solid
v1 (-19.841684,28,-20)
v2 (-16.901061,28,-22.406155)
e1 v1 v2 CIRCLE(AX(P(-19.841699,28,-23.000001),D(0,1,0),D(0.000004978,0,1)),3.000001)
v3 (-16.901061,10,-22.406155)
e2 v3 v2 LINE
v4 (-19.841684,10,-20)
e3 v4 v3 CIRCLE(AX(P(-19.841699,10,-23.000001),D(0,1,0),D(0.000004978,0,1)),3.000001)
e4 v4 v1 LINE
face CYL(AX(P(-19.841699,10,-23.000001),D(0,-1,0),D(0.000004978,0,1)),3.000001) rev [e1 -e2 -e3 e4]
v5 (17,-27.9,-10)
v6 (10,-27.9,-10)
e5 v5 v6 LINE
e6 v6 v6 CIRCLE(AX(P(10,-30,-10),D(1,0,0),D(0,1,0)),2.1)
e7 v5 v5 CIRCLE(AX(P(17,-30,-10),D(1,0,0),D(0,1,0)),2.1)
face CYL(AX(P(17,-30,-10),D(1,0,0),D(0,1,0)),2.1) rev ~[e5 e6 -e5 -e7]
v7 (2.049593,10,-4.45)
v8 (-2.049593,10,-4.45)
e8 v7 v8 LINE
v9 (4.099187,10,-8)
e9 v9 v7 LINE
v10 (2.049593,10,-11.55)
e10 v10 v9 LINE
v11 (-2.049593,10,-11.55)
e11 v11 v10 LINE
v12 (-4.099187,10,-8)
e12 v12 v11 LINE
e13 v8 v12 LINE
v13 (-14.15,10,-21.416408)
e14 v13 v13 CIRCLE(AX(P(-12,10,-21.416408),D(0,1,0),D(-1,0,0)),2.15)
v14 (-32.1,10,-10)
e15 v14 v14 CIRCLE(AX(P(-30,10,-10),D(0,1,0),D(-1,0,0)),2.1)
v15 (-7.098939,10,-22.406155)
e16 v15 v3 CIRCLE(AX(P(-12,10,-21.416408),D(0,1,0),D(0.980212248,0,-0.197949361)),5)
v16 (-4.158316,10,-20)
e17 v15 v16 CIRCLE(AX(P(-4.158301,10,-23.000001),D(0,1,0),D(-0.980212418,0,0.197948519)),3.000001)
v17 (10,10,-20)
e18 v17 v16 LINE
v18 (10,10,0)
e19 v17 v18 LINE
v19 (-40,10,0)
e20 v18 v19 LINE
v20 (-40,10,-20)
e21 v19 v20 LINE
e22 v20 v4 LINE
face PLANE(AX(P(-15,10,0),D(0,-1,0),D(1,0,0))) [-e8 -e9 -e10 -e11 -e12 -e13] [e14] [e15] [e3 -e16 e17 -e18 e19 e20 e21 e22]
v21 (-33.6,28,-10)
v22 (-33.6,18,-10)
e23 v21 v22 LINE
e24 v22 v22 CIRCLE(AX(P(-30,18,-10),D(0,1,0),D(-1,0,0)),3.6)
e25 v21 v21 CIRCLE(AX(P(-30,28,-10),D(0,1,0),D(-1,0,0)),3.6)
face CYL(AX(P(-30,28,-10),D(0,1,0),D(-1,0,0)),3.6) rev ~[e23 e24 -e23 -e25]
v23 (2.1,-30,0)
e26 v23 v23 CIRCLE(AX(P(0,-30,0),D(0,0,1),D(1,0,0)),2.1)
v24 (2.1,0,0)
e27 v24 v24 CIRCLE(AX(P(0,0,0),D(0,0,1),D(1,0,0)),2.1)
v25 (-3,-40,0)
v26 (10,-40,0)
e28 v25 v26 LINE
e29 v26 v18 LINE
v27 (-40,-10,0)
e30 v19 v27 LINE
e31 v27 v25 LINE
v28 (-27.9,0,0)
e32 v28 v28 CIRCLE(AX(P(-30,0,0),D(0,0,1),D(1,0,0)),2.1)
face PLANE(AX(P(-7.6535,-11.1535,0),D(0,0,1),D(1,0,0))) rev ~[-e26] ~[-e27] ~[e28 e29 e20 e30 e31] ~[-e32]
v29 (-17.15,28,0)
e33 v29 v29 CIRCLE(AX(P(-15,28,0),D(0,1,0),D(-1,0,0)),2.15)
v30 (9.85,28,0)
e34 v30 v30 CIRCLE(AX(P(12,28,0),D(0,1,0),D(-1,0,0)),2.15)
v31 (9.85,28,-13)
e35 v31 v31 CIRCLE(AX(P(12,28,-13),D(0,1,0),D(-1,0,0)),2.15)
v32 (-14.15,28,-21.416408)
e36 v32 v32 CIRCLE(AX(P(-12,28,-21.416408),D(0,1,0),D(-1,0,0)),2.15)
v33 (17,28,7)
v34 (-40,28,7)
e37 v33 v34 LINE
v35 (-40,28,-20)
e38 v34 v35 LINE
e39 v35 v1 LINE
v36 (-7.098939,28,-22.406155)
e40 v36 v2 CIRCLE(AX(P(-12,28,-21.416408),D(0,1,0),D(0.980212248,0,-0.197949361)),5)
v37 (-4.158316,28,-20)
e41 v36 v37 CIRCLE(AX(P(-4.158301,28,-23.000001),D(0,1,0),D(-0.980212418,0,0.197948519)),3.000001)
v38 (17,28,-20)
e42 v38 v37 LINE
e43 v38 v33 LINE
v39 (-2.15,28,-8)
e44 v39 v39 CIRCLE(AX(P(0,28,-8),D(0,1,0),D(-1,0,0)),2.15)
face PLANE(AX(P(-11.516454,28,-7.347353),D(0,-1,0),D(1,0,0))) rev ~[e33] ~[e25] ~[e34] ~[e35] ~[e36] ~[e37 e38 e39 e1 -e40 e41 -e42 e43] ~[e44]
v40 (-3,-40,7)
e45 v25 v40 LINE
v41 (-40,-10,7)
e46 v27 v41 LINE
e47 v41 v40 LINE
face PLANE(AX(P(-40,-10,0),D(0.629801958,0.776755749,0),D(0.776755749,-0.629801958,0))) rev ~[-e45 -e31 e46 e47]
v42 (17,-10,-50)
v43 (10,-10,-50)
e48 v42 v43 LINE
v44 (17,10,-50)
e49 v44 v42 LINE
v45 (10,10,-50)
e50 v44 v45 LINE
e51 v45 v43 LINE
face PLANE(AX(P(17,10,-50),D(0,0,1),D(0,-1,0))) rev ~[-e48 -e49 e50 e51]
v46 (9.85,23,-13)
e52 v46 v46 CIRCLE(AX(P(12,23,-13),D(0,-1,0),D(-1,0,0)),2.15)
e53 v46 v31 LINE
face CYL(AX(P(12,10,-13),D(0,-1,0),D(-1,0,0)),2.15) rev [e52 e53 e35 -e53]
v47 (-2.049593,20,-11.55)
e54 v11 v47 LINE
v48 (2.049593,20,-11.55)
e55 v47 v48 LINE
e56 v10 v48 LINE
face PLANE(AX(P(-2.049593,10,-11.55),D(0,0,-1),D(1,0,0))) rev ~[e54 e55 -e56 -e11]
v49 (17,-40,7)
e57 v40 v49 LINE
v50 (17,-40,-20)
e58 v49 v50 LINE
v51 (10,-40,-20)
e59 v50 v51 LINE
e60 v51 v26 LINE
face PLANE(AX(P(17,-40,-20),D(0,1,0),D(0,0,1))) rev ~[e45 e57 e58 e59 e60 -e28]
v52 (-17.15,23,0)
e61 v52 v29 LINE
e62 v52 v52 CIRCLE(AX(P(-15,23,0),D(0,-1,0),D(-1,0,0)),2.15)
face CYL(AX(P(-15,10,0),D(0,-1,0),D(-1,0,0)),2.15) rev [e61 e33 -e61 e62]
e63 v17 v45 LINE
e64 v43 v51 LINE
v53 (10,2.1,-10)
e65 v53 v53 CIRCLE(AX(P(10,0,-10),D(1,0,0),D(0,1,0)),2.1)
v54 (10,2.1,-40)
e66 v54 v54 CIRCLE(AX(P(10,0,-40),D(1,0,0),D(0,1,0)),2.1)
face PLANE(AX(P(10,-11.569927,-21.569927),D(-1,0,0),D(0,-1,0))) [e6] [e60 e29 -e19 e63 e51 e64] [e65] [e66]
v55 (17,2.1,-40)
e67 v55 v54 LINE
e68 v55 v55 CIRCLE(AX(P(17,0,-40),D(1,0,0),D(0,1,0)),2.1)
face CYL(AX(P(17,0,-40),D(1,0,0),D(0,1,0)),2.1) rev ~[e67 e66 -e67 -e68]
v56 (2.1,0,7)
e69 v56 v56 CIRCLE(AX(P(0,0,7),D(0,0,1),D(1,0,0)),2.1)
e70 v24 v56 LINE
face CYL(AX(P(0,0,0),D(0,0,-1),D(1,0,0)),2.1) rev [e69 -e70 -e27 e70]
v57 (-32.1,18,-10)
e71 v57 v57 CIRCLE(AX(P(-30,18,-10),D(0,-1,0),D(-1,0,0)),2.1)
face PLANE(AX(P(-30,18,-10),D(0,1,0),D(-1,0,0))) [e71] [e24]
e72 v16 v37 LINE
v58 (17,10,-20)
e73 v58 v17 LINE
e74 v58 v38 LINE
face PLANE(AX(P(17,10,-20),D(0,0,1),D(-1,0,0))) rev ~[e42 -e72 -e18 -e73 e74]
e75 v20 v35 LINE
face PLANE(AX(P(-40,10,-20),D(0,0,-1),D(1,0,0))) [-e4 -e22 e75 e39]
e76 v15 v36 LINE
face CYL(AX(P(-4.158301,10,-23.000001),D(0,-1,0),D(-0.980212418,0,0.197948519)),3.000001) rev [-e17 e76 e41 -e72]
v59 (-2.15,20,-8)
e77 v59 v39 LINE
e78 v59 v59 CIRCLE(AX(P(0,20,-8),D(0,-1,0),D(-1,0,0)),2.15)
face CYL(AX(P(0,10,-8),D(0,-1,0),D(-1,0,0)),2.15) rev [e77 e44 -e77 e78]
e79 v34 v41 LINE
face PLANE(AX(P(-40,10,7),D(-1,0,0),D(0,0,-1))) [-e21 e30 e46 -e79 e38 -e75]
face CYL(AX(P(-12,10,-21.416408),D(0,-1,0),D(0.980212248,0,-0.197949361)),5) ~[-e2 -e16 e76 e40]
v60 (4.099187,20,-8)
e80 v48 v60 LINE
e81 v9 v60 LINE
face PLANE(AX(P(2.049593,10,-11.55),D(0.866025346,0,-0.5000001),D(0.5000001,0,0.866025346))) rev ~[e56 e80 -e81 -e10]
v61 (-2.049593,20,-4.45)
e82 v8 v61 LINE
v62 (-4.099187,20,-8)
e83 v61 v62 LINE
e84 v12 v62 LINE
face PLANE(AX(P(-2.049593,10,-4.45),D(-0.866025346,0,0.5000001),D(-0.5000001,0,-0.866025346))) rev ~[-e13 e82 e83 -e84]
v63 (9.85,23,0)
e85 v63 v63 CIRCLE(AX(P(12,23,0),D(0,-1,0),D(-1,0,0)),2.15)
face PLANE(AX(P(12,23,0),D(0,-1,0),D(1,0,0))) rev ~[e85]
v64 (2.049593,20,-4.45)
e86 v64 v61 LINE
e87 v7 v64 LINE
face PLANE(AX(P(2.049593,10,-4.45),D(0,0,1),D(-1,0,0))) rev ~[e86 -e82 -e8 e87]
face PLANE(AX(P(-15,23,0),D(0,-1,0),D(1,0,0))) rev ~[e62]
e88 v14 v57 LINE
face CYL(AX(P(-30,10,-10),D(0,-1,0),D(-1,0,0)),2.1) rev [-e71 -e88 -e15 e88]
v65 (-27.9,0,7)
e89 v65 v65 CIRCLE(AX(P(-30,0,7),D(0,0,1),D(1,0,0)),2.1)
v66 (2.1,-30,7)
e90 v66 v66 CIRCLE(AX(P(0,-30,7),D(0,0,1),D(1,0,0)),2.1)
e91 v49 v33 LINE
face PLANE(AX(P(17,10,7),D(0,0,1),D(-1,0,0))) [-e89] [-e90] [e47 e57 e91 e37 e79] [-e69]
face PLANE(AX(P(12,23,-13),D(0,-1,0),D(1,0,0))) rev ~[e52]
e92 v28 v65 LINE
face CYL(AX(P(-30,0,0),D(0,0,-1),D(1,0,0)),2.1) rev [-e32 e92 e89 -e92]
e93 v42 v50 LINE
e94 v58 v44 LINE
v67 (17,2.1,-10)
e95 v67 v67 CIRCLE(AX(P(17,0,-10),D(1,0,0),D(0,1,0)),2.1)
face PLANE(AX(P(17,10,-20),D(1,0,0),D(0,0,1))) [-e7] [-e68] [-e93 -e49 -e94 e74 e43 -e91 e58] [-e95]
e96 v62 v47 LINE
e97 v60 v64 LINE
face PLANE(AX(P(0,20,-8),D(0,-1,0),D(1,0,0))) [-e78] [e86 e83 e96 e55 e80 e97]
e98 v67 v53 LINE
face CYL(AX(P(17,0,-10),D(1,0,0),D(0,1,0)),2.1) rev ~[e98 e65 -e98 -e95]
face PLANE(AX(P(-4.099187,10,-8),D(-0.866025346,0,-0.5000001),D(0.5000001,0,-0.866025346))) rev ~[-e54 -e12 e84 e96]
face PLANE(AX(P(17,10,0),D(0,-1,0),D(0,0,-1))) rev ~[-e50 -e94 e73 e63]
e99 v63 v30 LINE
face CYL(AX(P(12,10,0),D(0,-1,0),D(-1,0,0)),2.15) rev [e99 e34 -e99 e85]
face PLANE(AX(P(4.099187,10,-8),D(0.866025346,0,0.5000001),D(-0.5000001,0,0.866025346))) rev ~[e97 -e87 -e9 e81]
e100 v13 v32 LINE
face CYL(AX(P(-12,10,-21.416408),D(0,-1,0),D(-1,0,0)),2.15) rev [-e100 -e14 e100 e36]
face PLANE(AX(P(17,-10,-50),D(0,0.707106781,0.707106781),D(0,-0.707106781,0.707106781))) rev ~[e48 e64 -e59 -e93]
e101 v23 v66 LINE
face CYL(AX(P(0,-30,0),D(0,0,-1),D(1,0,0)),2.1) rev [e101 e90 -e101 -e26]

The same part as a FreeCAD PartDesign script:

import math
import FreeCAD as App
import Part
import Sketcher

V = App.Vector
Q = App.Units.Quantity

doc = App.newDocument("Part")
body = doc.addObject("PartDesign::Body", "Body")

sketch1 = body.newObject("Sketcher::SketchObject", "Sketch")
sketch1.AttachmentSupport = (doc.getObject("XY_Plane"), [""])
sketch1.MapMode = "FlatFace"
sketch1.addGeometry([
    Part.LineSegment(V(-40, 10, 0), V(-40, -10, 0)),
    Part.LineSegment(V(-40, -10, 0), V(-3, -40, 0)),
    Part.LineSegment(V(-3, -40, 0), V(17, -40, 0)),
    Part.LineSegment(V(17, -40, 0), V(17, 10, 0)),
    Part.LineSegment(V(17, 10, 0), V(-40, 10, 0)),
    Part.Circle(V(0, -30, 0), V(0, 0, 1), 2.1),
    Part.Circle(V(-30, 0, 0), V(0, 0, 1), 2.1),
    Part.Circle(V(0, 0, 0), V(0, 0, 1), 2.1),
], False)
sketch1.addConstraint([
    Sketcher.Constraint("Coincident", 0, 2, 1, 1),
    Sketcher.Constraint("Coincident", 1, 2, 2, 1),
    Sketcher.Constraint("Coincident", 2, 2, 3, 1),
    Sketcher.Constraint("Coincident", 3, 2, 4, 1),
    Sketcher.Constraint("Coincident", 4, 2, 0, 1),
    Sketcher.Constraint("Vertical", 0),
    Sketcher.Constraint("Horizontal", 2),
    Sketcher.Constraint("Vertical", 3),
    Sketcher.Constraint("Horizontal", 4),
    Sketcher.Constraint("Coincident", 7, 3, -1, 1),
    Sketcher.Constraint("Equal", 5, 6),
    Sketcher.Constraint("Equal", 6, 7),
    Sketcher.Constraint("PointOnObject", 5, 3, -2),
    Sketcher.Constraint("PointOnObject", 6, 3, -1),
    Sketcher.Constraint("Equal", 2, 0),
    Sketcher.Constraint("Diameter", 5, Q("4.2 mm")),
    Sketcher.Constraint("DistanceX", 2, 1, 2, 2, Q("20 mm")),
    Sketcher.Constraint("DistanceX", 4, 2, 4, 1, Q("57 mm")),
    Sketcher.Constraint("DistanceY", 3, 1, 3, 2, Q("50 mm")),
    Sketcher.Constraint("DistanceY", 5, 3, -1, 1, Q("30 mm")),
    Sketcher.Constraint("DistanceX", 6, 3, -1, 1, Q("30 mm")),
    Sketcher.Constraint("DistanceX", 0, 2, -1, 1, Q("40 mm")),
    Sketcher.Constraint("DistanceY", 0, 2, -1, 1, Q("10 mm")),
])
pad1 = body.newObject("PartDesign::Pad", "Pad")
pad1.Profile = sketch1
pad1.Length = 7

sketch2 = body.newObject("Sketcher::SketchObject", "Sketch001")
sketch2.AttachmentSupport = (doc.getObject("YZ_Plane"), [""])
sketch2.MapMode = "FlatFace"
sketch2.AttachmentOffset = App.Placement(V(0, 0, 17), App.Rotation())
sketch2.addGeometry([
    Part.LineSegment(V(10, -50, 0), V(10, 0, 0)),
    Part.LineSegment(V(10, 0, 0), V(-40, 0, 0)),
    Part.LineSegment(V(-40, 0, 0), V(-40, -20, 0)),
    Part.LineSegment(V(-40, -20, 0), V(-10, -50, 0)),
    Part.LineSegment(V(-10, -50, 0), V(10, -50, 0)),
    Part.Circle(V(0, -40, 0), V(0, 0, 1), 2.1),
    Part.Circle(V(0, -10, 0), V(0, 0, 1), 2.1),
    Part.Circle(V(-30, -10, 0), V(0, 0, 1), 2.1),
], False)
sketch2.addConstraint([
    Sketcher.Constraint("Coincident", 0, 2, 1, 1),
    Sketcher.Constraint("Coincident", 1, 2, 2, 1),
    Sketcher.Constraint("Coincident", 2, 2, 3, 1),
    Sketcher.Constraint("Coincident", 3, 2, 4, 1),
    Sketcher.Constraint("Coincident", 4, 2, 0, 1),
    Sketcher.Constraint("Vertical", 0),
    Sketcher.Constraint("Horizontal", 1),
    Sketcher.Constraint("Vertical", 2),
    Sketcher.Constraint("Horizontal", 4),
    Sketcher.Constraint("Equal", 5, 6),
    Sketcher.Constraint("Equal", 6, 7),
    Sketcher.Constraint("PointOnObject", 5, 3, -2),
    Sketcher.Constraint("PointOnObject", 6, 3, -2),
    Sketcher.Constraint("PointOnObject", 0, 2, -1),
    Sketcher.Constraint("Horizontal", 6, 3, 7, 3),
    Sketcher.Constraint("Equal", 1, 0),
    Sketcher.Constraint("Equal", 4, 2),
    Sketcher.Constraint("Diameter", 5, Q("4.2 mm")),
    Sketcher.Constraint("DistanceX", 1, 2, 1, 1, Q("50 mm")),
    Sketcher.Constraint("DistanceX", 4, 1, 4, 2, Q("20 mm")),
    Sketcher.Constraint("DistanceY", 5, 3, -1, 1, Q("40 mm")),
    Sketcher.Constraint("DistanceY", 6, 3, -1, 1, Q("10 mm")),
    Sketcher.Constraint("DistanceX", 7, 3, -1, 1, Q("30 mm")),
    Sketcher.Constraint("DistanceX", -1, 1, 0, 2, Q("10 mm")),
])
pad2 = body.newObject("PartDesign::Pad", "Pad001")
pad2.Profile = sketch2
pad2.Length = 7
pad2.Reversed = True

sketch3 = body.newObject("Sketcher::SketchObject", "Sketch002")
sketch3.AttachmentSupport = (doc.getObject("XZ_Plane"), [""])
sketch3.MapMode = "FlatFace"
sketch3.AttachmentOffset = App.Placement(V(0, 0, -10), App.Rotation())
sketch3.addGeometry([
    Part.LineSegment(V(-40, 7, 0), V(17, 7, 0)),
    Part.LineSegment(V(17, 7, 0), V(17, -20, 0)),
    Part.LineSegment(V(17, -20, 0), V(-4.2, -20, 0)),
    Part.ArcOfCircle(Part.Circle(V(-4.2, -23, 0), V(0, 0, 1), 3), math.radians(90), math.radians(169)),
    Part.ArcOfCircle(Part.Circle(V(-12, -21.4, 0), V(0, 0, 1), 5), math.radians(-169), math.radians(-11)),
    Part.ArcOfCircle(Part.Circle(V(-19.8, -23, 0), V(0, 0, 1), 3), math.radians(11), math.radians(90)),
    Part.LineSegment(V(-19.8, -20, 0), V(-40, -20, 0)),
    Part.LineSegment(V(-40, -20, 0), V(-40, 7, 0)),
    Part.Circle(V(-12, -21.4, 0), V(0, 0, 1), 2.1),
    Part.Circle(V(12, -13, 0), V(0, 0, 1), 2.1),
    Part.Circle(V(-30, -10, 0), V(0, 0, 1), 2.1),
    Part.Circle(V(-15, 0, 0), V(0, 0, 1), 2.1),
    Part.Circle(V(0, -8, 0), V(0, 0, 1), 2.1),
    Part.Circle(V(12, 0, 0), V(0, 0, 1), 2.1),
], False)
sketch3.addConstraint([
    Sketcher.Constraint("Coincident", 0, 2, 1, 1),
    Sketcher.Constraint("Coincident", 1, 2, 2, 1),
    Sketcher.Constraint("Coincident", 2, 2, 3, 1),
    Sketcher.Constraint("Tangent", 3, 2, 4, 2),
    Sketcher.Constraint("Tangent", 4, 1, 5, 1),
    Sketcher.Constraint("Coincident", 5, 2, 6, 1),
    Sketcher.Constraint("Coincident", 6, 2, 7, 1),
    Sketcher.Constraint("Coincident", 7, 2, 0, 1),
    Sketcher.Constraint("Horizontal", 0),
    Sketcher.Constraint("Vertical", 1),
    Sketcher.Constraint("Horizontal", 2),
    Sketcher.Constraint("Horizontal", 6),
    Sketcher.Constraint("Vertical", 7),
    Sketcher.Constraint("Coincident", 8, 3, 4, 3),
    Sketcher.Constraint("Equal", 3, 5),
    Sketcher.Constraint("Equal", 8, 9),
    Sketcher.Constraint("Equal", 9, 11),
    Sketcher.Constraint("Equal", 11, 12),
    Sketcher.Constraint("Equal", 12, 13),
    Sketcher.Constraint("PointOnObject", 11, 3, -1),
    Sketcher.Constraint("PointOnObject", 12, 3, -2),
    Sketcher.Constraint("PointOnObject", 13, 3, -1),
    Sketcher.Constraint("Horizontal", 3, 3, 5, 3),
    Sketcher.Constraint("Vertical", 9, 3, 13, 3),
    Sketcher.Constraint("Radius", 3, Q("3.000001 mm")),
    Sketcher.Constraint("Radius", 4, Q("5 mm")),
    Sketcher.Constraint("Diameter", 8, Q("4.3 mm")),
    Sketcher.Constraint("Diameter", 10, Q("4.2 mm")),
    Sketcher.Constraint("DistanceX", 0, 1, 0, 2, Q("57 mm")),
    Sketcher.Constraint("DistanceY", 1, 2, 1, 1, Q("27 mm")),
    Sketcher.Constraint("DistanceY", 3, 3, -1, 1, Q("23.000001 mm")),
    Sketcher.Constraint("DistanceX", 4, 3, -1, 1, Q("12 mm")),
    Sketcher.Constraint("DistanceX", -1, 1, 9, 3, Q("12 mm")),
    Sketcher.Constraint("DistanceY", 9, 3, -1, 1, Q("13 mm")),
    Sketcher.Constraint("DistanceX", 10, 3, -1, 1, Q("30 mm")),
    Sketcher.Constraint("DistanceY", 10, 3, -1, 1, Q("10 mm")),
    Sketcher.Constraint("DistanceX", 11, 3, -1, 1, Q("15 mm")),
    Sketcher.Constraint("DistanceY", 12, 3, -1, 1, Q("8 mm")),
    Sketcher.Constraint("DistanceX", -1, 1, 0, 2, Q("17 mm")),
    Sketcher.Constraint("DistanceX", 3, 3, -1, 1, Q("4.158301 mm")),
    Sketcher.Constraint("DistanceX", 2, 2, 2, 1, Q("21.158316 mm")),
    Sketcher.Constraint("DistanceX", 6, 2, 6, 1, Q("20.158316 mm")),
])
pad3 = body.newObject("PartDesign::Pad", "Pad002")
pad3.Profile = sketch3
pad3.Length = 18
pad3.Reversed = True

sketch4 = body.newObject("Sketcher::SketchObject", "Sketch003")
sketch4.AttachmentSupport = (doc.getObject("XZ_Plane"), [""])
sketch4.MapMode = "FlatFace"
sketch4.AttachmentOffset = App.Placement(V(0, 0, -10), App.Rotation())
sketch4.addGeometry([
    Part.Circle(V(-15, 0, 0), V(0, 0, 1), 2.1),
    Part.Circle(V(12, 0, 0), V(0, 0, 1), 2.1),
    Part.Circle(V(12, -13, 0), V(0, 0, 1), 2.1),
], False)
sketch4.addConstraint([
    Sketcher.Constraint("Equal", 0, 1),
    Sketcher.Constraint("Equal", 1, 2),
    Sketcher.Constraint("PointOnObject", 0, 3, -1),
    Sketcher.Constraint("PointOnObject", 1, 3, -1),
    Sketcher.Constraint("Vertical", 1, 3, 2, 3),
    Sketcher.Constraint("Diameter", 0, Q("4.3 mm")),
    Sketcher.Constraint("DistanceX", 0, 3, -1, 1, Q("15 mm")),
    Sketcher.Constraint("DistanceX", -1, 1, 1, 3, Q("12 mm")),
    Sketcher.Constraint("DistanceY", 2, 3, -1, 1, Q("13 mm")),
])
pad4 = body.newObject("PartDesign::Pad", "Pad003")
pad4.Profile = sketch4
pad4.Length = 13
pad4.Reversed = True

sketch5 = body.newObject("Sketcher::SketchObject", "Sketch004")
sketch5.AttachmentSupport = (doc.getObject("XZ_Plane"), [""])
sketch5.MapMode = "FlatFace"
sketch5.AttachmentOffset = App.Placement(V(0, 0, -28), App.Rotation())
sketch5.addGeometry(Part.Circle(V(-30, -10, 0), V(0, 0, 1), 3.6), False)
sketch5.addConstraint([
    Sketcher.Constraint("Diameter", 0, Q("7.2 mm")),
    Sketcher.Constraint("DistanceX", 0, 3, -1, 1, Q("30 mm")),
    Sketcher.Constraint("DistanceY", 0, 3, -1, 1, Q("10 mm")),
])
pocket1 = body.newObject("PartDesign::Pocket", "Pocket")
pocket1.Profile = sketch5
pocket1.Length = 10
pocket1.Reversed = True

sketch6 = body.newObject("Sketcher::SketchObject", "Sketch005")
sketch6.AttachmentSupport = (doc.getObject("XZ_Plane"), [""])
sketch6.MapMode = "FlatFace"
sketch6.AttachmentOffset = App.Placement(V(0, 0, -10), App.Rotation())
sketch6.addGeometry([
    Part.LineSegment(V(2, -11.6, 0), V(4.1, -8, 0)),
    Part.LineSegment(V(4.1, -8, 0), V(2, -4.5, 0)),
    Part.LineSegment(V(2, -4.5, 0), V(-2, -4.5, 0)),
    Part.LineSegment(V(-2, -4.5, 0), V(-4.1, -8, 0)),
    Part.LineSegment(V(-4.1, -8, 0), V(-2, -11.6, 0)),
    Part.LineSegment(V(-2, -11.6, 0), V(2, -11.6, 0)),
], False)
sketch6.addConstraint([
    Sketcher.Constraint("Coincident", 0, 2, 1, 1),
    Sketcher.Constraint("Coincident", 1, 2, 2, 1),
    Sketcher.Constraint("Coincident", 2, 2, 3, 1),
    Sketcher.Constraint("Coincident", 3, 2, 4, 1),
    Sketcher.Constraint("Coincident", 4, 2, 5, 1),
    Sketcher.Constraint("Coincident", 5, 2, 0, 1),
    Sketcher.Constraint("Horizontal", 2),
    Sketcher.Constraint("Horizontal", 5),
    Sketcher.Constraint("Symmetric", 0, 2, 3, 2, -2),
    Sketcher.Constraint("Parallel", 0, 3),
    Sketcher.Constraint("Parallel", 1, 4),
    Sketcher.Constraint("Vertical", 2, 2, 4, 2),
    Sketcher.Constraint("Vertical", 1, 2, 5, 2),
    Sketcher.Constraint("Angle", 0, Q("59.999993 deg")),
    Sketcher.Constraint("DistanceY", 0, 2, -1, 1, Q("8 mm")),
    Sketcher.Constraint("DistanceY", 4, 2, 2, 2, Q("7.1 mm")),
    Sketcher.Constraint("DistanceX", 2, 2, 2, 1, Q("4.099186 mm")),
])
pocket2 = body.newObject("PartDesign::Pocket", "Pocket001")
pocket2.Profile = sketch6
pocket2.Length = 10

doc.recompute()
